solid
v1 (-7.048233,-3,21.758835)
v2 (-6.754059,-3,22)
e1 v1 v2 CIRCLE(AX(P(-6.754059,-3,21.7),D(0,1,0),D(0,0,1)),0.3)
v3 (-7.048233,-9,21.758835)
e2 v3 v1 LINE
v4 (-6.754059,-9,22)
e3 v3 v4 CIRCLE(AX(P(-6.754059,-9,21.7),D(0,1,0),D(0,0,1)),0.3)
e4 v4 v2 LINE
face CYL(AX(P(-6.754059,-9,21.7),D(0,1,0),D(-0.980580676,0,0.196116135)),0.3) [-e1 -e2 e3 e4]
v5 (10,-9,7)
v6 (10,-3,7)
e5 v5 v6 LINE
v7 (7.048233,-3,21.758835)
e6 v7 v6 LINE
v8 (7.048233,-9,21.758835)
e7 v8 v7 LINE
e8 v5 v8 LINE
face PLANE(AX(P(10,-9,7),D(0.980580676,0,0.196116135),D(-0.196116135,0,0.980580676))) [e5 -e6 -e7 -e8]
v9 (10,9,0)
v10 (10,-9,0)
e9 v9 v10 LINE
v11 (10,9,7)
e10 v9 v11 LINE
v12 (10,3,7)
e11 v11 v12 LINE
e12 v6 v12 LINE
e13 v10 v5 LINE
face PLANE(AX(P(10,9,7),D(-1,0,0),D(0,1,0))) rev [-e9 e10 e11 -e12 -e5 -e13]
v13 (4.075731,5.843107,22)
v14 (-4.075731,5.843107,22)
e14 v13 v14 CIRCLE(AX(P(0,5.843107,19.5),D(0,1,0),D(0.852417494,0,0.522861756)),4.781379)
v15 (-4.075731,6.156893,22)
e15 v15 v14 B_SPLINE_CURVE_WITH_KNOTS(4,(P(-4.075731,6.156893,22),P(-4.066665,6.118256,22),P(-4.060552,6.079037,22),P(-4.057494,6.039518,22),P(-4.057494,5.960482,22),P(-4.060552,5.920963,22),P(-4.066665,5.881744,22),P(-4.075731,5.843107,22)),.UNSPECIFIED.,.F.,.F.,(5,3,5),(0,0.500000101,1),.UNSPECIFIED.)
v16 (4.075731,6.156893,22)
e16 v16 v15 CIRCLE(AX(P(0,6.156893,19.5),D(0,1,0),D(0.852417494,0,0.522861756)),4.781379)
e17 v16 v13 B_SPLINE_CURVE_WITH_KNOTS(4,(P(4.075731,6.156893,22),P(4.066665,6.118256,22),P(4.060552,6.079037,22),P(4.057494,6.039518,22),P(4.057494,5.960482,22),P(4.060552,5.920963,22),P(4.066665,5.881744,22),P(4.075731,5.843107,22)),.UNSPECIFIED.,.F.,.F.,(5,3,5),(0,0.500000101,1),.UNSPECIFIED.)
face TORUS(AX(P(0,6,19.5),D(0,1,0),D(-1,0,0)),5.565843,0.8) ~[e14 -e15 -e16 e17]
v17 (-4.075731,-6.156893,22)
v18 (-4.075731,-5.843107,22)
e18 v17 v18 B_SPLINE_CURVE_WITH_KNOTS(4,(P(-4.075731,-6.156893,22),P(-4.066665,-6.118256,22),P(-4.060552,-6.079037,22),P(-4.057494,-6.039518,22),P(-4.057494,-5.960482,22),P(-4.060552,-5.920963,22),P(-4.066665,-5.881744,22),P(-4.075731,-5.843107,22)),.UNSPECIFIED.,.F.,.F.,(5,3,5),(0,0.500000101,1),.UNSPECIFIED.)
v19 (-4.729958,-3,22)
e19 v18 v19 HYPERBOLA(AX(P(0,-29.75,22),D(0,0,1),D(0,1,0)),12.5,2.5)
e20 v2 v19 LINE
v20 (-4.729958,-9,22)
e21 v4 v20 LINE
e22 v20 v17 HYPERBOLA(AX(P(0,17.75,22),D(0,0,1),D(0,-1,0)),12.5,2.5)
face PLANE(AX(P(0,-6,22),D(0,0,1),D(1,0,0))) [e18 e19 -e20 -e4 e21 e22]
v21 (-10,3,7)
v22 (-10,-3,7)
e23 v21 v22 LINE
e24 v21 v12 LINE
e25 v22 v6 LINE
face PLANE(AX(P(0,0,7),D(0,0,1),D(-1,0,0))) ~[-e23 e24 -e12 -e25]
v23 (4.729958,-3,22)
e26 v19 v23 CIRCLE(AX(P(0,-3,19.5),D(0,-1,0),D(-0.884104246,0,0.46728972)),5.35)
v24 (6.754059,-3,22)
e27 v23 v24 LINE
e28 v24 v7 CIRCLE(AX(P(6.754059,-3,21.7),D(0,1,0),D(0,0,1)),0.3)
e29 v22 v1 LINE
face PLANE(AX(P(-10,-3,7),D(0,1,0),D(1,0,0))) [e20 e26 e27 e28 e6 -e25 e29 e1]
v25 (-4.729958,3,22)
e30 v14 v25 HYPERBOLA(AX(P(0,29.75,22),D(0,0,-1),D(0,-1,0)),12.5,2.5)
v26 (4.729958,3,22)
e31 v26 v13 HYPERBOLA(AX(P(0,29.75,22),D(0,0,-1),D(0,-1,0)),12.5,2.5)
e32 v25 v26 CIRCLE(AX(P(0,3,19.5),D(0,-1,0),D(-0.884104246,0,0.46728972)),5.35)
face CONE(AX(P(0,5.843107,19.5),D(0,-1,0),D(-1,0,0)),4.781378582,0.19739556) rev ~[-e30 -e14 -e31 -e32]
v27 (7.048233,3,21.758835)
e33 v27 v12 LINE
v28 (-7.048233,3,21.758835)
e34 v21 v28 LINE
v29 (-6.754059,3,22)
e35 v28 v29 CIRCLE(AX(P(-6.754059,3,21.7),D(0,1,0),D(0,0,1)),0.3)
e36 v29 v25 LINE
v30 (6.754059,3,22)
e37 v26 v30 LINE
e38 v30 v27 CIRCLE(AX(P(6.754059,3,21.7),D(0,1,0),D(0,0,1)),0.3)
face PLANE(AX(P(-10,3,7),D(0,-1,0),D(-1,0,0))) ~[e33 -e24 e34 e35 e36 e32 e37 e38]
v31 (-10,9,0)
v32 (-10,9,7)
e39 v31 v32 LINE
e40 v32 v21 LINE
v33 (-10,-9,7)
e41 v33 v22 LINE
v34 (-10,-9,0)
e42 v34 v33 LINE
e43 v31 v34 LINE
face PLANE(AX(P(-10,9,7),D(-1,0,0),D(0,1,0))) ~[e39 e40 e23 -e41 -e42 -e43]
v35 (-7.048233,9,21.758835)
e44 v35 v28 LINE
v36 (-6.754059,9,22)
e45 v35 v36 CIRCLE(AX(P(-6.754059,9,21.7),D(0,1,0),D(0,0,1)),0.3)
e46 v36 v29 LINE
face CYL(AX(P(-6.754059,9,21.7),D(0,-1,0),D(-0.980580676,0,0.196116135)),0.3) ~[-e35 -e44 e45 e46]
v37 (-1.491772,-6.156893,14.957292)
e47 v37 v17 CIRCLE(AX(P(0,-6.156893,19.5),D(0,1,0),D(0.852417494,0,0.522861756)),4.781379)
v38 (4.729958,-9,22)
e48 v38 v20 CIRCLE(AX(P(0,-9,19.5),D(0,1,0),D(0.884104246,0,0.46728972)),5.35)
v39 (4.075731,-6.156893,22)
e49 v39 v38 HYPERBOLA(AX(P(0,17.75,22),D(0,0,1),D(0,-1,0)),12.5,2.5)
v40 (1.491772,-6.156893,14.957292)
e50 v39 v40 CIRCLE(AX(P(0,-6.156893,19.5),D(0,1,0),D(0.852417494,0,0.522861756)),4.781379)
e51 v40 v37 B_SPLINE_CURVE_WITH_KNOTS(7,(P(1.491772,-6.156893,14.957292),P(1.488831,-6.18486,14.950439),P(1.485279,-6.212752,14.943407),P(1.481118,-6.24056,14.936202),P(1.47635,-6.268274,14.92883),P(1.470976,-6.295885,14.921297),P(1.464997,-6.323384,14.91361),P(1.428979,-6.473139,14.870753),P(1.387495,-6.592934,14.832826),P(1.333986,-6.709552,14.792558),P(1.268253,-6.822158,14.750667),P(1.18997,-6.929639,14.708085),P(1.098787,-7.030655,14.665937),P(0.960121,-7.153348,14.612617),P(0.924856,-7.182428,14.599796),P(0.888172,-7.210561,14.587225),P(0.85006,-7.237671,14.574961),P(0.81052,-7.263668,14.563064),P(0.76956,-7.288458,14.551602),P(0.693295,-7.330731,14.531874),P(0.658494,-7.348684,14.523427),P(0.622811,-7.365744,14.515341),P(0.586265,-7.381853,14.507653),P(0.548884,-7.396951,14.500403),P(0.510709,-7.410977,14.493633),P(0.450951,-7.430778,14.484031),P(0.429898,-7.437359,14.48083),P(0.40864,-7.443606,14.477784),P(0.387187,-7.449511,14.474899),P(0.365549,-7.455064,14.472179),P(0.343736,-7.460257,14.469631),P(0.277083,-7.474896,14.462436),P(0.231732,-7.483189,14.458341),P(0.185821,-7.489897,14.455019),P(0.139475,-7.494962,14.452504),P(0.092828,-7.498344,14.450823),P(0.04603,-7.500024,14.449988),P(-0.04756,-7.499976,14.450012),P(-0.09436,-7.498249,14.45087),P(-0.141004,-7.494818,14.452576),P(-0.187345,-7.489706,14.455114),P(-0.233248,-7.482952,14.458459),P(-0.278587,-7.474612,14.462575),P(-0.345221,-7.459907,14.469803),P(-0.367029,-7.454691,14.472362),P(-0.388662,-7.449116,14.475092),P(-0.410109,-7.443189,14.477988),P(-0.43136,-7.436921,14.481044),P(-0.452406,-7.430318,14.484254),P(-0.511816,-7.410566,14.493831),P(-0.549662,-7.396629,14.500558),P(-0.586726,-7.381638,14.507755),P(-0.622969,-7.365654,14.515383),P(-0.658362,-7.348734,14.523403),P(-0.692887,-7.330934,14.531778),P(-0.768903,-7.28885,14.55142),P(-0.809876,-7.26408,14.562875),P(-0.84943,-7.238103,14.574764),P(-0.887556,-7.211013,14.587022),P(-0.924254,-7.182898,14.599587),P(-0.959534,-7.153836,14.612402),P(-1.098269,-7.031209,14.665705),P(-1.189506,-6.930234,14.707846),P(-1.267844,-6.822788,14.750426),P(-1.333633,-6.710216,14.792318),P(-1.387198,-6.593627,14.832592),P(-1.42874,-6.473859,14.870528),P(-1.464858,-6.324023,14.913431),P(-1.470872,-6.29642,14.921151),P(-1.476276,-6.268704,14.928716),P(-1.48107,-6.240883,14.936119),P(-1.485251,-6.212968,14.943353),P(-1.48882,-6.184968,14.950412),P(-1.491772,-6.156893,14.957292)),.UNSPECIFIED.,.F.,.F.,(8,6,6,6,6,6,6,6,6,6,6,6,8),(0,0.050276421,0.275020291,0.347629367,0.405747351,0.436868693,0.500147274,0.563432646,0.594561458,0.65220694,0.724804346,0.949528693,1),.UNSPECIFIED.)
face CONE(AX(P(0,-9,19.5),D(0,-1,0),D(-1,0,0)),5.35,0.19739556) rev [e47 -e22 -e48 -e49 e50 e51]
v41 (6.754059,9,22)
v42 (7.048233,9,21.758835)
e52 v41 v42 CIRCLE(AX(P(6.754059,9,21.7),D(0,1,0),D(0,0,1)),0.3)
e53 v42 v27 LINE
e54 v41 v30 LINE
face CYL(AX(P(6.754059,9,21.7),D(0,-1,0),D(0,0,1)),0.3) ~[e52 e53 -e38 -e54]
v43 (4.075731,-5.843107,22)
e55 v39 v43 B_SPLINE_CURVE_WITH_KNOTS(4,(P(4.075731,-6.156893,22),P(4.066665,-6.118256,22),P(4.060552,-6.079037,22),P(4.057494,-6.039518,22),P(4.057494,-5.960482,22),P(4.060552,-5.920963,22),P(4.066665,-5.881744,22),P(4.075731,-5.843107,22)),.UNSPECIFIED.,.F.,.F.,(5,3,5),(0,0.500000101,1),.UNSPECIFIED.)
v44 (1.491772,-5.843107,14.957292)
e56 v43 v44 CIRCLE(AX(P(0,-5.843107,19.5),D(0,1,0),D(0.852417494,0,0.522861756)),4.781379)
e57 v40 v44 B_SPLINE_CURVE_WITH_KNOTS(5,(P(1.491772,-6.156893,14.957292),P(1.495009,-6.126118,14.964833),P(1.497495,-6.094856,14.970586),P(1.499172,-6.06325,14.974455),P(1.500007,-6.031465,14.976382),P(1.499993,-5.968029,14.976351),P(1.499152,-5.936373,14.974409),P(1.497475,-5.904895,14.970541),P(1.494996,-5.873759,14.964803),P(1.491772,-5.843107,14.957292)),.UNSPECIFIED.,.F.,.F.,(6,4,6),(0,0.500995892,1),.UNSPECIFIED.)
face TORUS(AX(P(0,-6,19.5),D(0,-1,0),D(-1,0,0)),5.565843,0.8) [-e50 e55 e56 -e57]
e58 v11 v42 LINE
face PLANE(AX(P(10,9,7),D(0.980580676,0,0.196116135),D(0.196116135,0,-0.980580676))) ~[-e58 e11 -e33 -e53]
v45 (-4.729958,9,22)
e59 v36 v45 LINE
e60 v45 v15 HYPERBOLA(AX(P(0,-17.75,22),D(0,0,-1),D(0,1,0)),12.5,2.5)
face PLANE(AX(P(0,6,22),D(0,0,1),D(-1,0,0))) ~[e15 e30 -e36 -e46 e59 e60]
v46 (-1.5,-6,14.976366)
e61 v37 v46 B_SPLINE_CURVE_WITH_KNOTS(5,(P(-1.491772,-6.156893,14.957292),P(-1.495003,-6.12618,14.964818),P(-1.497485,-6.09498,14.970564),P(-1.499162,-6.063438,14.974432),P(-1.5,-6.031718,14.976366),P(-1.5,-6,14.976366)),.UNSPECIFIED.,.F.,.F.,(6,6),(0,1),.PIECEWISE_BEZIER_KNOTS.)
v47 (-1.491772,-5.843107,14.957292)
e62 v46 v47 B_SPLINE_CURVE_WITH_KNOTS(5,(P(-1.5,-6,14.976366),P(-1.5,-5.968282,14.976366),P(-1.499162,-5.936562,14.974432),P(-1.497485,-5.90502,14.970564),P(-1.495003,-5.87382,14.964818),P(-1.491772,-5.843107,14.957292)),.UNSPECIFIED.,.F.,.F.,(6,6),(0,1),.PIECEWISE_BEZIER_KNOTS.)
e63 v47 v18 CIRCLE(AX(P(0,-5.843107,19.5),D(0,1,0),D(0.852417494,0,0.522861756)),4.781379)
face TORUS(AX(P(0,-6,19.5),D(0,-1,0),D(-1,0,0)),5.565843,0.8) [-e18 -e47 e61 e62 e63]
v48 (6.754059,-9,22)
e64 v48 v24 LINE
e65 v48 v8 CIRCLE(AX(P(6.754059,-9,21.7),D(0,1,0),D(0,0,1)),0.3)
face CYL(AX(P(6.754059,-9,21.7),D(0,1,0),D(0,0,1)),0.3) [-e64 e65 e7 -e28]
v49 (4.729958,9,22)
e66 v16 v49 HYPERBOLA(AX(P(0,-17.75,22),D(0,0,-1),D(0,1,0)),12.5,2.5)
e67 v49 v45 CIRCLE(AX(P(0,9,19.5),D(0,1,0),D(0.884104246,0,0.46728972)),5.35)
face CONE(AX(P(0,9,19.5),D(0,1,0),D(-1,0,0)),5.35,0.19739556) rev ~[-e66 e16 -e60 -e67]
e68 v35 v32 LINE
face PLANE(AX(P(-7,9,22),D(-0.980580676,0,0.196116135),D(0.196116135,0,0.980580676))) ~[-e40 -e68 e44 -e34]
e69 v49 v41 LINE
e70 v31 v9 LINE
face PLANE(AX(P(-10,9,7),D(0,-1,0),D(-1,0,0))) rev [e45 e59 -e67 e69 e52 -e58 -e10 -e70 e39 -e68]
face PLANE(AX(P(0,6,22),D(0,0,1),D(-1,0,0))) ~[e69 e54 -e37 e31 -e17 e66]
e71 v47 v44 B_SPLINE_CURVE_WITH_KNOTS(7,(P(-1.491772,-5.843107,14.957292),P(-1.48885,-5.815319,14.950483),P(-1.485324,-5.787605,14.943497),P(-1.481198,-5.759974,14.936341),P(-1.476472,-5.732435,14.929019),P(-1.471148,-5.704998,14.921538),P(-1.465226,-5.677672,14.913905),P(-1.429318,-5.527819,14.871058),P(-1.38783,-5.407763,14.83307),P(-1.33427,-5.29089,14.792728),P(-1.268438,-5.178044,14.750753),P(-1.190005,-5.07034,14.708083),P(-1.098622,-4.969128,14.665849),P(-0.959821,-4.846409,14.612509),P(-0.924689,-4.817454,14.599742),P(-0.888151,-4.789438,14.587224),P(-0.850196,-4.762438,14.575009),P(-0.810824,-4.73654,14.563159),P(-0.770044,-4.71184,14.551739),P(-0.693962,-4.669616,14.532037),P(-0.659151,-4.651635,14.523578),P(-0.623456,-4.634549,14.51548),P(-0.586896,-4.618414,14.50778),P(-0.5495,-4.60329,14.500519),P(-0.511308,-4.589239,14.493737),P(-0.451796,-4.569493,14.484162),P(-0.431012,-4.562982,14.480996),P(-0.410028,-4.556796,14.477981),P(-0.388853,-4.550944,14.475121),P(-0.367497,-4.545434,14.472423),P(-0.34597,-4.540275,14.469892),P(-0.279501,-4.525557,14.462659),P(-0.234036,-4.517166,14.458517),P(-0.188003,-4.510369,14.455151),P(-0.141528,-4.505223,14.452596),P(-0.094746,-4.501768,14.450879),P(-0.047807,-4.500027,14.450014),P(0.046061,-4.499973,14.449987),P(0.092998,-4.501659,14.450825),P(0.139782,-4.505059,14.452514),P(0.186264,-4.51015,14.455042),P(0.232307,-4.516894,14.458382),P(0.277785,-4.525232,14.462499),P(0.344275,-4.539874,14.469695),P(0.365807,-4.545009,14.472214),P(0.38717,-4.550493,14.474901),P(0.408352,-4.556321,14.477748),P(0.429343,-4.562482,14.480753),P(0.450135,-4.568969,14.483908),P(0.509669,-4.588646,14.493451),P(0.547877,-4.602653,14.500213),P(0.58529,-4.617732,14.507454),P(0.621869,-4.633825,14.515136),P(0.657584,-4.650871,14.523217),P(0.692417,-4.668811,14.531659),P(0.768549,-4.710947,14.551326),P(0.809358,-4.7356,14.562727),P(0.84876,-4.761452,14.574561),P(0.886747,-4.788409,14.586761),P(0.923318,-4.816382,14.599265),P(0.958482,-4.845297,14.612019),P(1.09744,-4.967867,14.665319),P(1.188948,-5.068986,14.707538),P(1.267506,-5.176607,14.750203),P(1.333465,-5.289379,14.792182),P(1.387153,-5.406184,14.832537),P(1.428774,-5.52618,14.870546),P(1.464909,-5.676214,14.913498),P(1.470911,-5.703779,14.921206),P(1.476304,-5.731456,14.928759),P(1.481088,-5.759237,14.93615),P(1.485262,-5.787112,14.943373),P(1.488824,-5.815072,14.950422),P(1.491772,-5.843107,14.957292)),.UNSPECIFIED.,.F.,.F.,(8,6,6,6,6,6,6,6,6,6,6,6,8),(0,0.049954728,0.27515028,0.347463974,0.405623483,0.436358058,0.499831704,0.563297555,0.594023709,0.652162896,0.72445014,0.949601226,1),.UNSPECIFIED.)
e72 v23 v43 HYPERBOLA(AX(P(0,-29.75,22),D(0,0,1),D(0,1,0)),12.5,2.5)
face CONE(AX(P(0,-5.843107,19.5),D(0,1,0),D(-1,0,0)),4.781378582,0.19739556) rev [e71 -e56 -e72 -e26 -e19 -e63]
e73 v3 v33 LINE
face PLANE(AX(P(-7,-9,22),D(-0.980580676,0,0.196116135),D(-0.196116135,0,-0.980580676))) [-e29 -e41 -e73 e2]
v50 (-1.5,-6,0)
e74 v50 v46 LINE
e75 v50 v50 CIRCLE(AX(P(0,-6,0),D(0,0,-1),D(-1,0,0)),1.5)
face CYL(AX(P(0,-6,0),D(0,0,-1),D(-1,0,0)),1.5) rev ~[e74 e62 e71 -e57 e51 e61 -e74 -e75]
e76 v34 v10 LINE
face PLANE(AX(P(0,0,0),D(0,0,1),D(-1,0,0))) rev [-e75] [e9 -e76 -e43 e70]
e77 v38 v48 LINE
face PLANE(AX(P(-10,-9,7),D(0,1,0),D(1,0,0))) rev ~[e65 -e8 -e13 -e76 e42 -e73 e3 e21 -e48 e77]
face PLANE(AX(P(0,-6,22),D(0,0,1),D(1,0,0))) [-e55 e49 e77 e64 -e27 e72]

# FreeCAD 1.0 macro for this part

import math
import FreeCAD as App
import Part
import Sketcher

V = App.Vector
Q = App.Units.Quantity


def edges_at(feature, points):
    """Names of the edges that pass closest to the given points."""
    edges = feature.Shape.Edges
    near = lambda p: min(range(len(edges)), key=lambda i: edges[i].distToShape(Part.Vertex(*p))[0])
    return sorted({f"Edge{near(p) + 1}" for p in points})


def add_polygon(sketch, points):
    """Adds a closed chain of lines whose ends are joined by coincident constraints."""
    first, n = sketch.GeometryCount, len(points)
    for a, b in zip(points, points[1:] + points[:1]):
        sketch.addGeometry(Part.LineSegment(App.Vector(*a, 0), App.Vector(*b, 0)), False)
    for i in range(n):
        sketch.addConstraint(Sketcher.Constraint("Coincident", first + i, 2, first + (i + 1) % n, 1))

doc = App.newDocument("Part")
body = doc.addObject("PartDesign::Body", "Body")

# Sketch on XY plane
sketch1 = body.newObject("Sketcher::SketchObject", "Sketch")
sketch1.AttachmentSupport = (doc.getObject("XY_Plane"), [""])
sketch1.MapMode = "FlatFace"
add_polygon(sketch1, [(-10, 9), (-10, -9), (10, -9), (10, 9)])  # lines 0-3
sketch1.addConstraint([
    Sketcher.Constraint("Vertical", 0),
    Sketcher.Constraint("Horizontal", 1),
    Sketcher.Constraint("Vertical", 2),
    Sketcher.Constraint("Horizontal", 3),
    Sketcher.Constraint("Symmetric", 0, 2, 2, 2, -1, 1),
    Sketcher.Constraint("DistanceX", 1, 1, 1, 2, Q("20 mm")),
    Sketcher.Constraint("DistanceY", 0, 2, 0, 1, Q("18 mm")),
])
pad1 = body.newObject("PartDesign::Pad", "Pad")
pad1.Profile = sketch1
pad1.Length = 7

# Sketch on XY plane
sketch2 = body.newObject("Sketcher::SketchObject", "Sketch001")
sketch2.AttachmentSupport = (doc.getObject("XY_Plane"), [""])
sketch2.MapMode = "FlatFace"
sketch2.AttachmentOffset = App.Placement(V(0, 0, 7), App.Rotation())
add_polygon(sketch2, [(-10, -3), (-10, -9), (10, -9), (10, -3)])  # lines 0-3
add_polygon(sketch2, [(-10, 9), (-10, 3), (10, 3), (10, 9)])  # lines 4-7
sketch2.addConstraint([
    Sketcher.Constraint("Vertical", 0),
    Sketcher.Constraint("Horizontal", 1),
    Sketcher.Constraint("Vertical", 2),
    Sketcher.Constraint("Horizontal", 3),
    Sketcher.Constraint("Vertical", 4),
    Sketcher.Constraint("Horizontal", 5),
    Sketcher.Constraint("Vertical", 6),
    Sketcher.Constraint("Horizontal", 7),
    Sketcher.Constraint("Symmetric", 2, 2, 4, 2, -1, 1),
    Sketcher.Constraint("Symmetric", 0, 2, 6, 2, -1, 1),
    Sketcher.Constraint("Vertical", 3, 2, 4, 2),
    Sketcher.Constraint("DistanceX", 1, 1, 1, 2, Q("20 mm")),
    Sketcher.Constraint("DistanceY", 0, 2, 0, 1, Q("6 mm")),
    Sketcher.Constraint("DistanceY", 0, 2, -1, 1, Q("9 mm")),
])
pad2 = body.newObject("PartDesign::Pad", "Pad001")
pad2.Profile = sketch2
pad2.Length = 15

# Sketch on XZ plane
sketch3 = body.newObject("Sketcher::SketchObject", "Sketch002")
sketch3.AttachmentSupport = (doc.getObject("XZ_Plane"), [""])
sketch3.MapMode = "FlatFace"
sketch3.AttachmentOffset = App.Placement(V(0, 0, 9), App.Rotation())
sketch3.addGeometry(Part.Circle(V(0, 19.5, 0), V(0, 0, 1), 5.3), False)  # 0
add_polygon(sketch3, [(-10, 7), (-7, 22), (-10, 22)])  # lines 1-3
add_polygon(sketch3, [(10, 22), (7, 22), (10, 7)])  # lines 4-6
sketch3.addConstraint([
    Sketcher.Constraint("Horizontal", 2),
    Sketcher.Constraint("Vertical", 3),
    Sketcher.Constraint("Horizontal", 4),
    Sketcher.Constraint("Vertical", 6),
    Sketcher.Constraint("Symmetric", 1, 2, 4, 2, -2),
    Sketcher.Constraint("Symmetric", 3, 2, 5, 2, -2),
    Sketcher.Constraint("PointOnObject", 0, 3, -2),
    Sketcher.Constraint("Diameter", 0, Q("10.7 mm")),
    Sketcher.Constraint("DistanceX", 2, 2, 2, 1, Q("3 mm")),
    Sketcher.Constraint("DistanceY", 3, 2, 3, 1, Q("15 mm")),
    Sketcher.Constraint("DistanceX", 1, 2, -1, 1, Q("7 mm")),
    Sketcher.Constraint("DistanceY", -1, 1, 1, 2, Q("22 mm")),
    Sketcher.Constraint("DistanceY", -1, 1, 0, 3, Q("19.5 mm")),
])
pocket1 = body.newObject("PartDesign::Pocket", "Pocket")
pocket1.Profile = sketch3
pocket1.Length = 18

# Sketch on XY plane
sketch4 = body.newObject("Sketcher::SketchObject", "Sketch003")
sketch4.AttachmentSupport = (doc.getObject("XY_Plane"), [""])
sketch4.MapMode = "FlatFace"
sketch4.AttachmentOffset = App.Placement(V(0, 0, 19.5), App.Rotation())
sketch4.addGeometry([
    Part.LineSegment(V(-5.35, -3, 0), V(-5.35, -9, 0)),
    Part.LineSegment(V(-5.35, -9, 0), V(-4.78, -6.16, 0)),
    Part.ArcOfCircle(Part.Circle(V(-5.57, -6, 0), V(0, 0, 1), 0.8), math.radians(-11), math.radians(11)),
    Part.LineSegment(V(-4.78, -5.84, 0), V(-5.35, -3, 0)),
], False)
sketch4.addConstraint([
    Sketcher.Constraint("Coincident", 0, 2, 1, 1),
    Sketcher.Constraint("Tangent", 1, 2, 2, 1),
    Sketcher.Constraint("Tangent", 2, 2, 3, 1),
    Sketcher.Constraint("Coincident", 3, 2, 0, 1),
    Sketcher.Constraint("Vertical", 0),
    Sketcher.Constraint("Vertical", 1, 2, 2, 2),
    Sketcher.Constraint("Radius", 2, Q("0.8 mm")),
    Sketcher.Constraint("DistanceY", 0, 2, 0, 1, Q("6 mm")),
    Sketcher.Constraint("DistanceY", 2, 3, -1, 1, Q("6 mm")),
    Sketcher.Constraint("DistanceX", 0, 2, -1, 1, Q("5.35 mm")),
    Sketcher.Constraint("Distance", 1, Q("2.899412 mm")),
])
revolution = body.newObject("PartDesign::Revolution", "Revolution")
revolution.Profile = sketch4
revolution.ReferenceAxis = (sketch4, ["V_Axis"])
revolution.Angle = 360

# Sketch on XY plane
sketch5 = body.newObject("Sketcher::SketchObject", "Sketch004")
sketch5.AttachmentSupport = (doc.getObject("XY_Plane"), [""])
sketch5.MapMode = "FlatFace"
sketch5.AttachmentOffset = App.Placement(V(0, 0, 22), App.Rotation())
add_polygon(sketch5, [(-7, -3), (-7, -9), (7, -9), (7, -3)])  # lines 0-3
sketch5.addConstraint([
    Sketcher.Constraint("Vertical", 0),
    Sketcher.Constraint("Horizontal", 1),
    Sketcher.Constraint("Vertical", 2),
    Sketcher.Constraint("Horizontal", 3),
    Sketcher.Constraint("DistanceX", 1, 1, 1, 2, Q("14 mm")),
    Sketcher.Constraint("DistanceY", 0, 2, 0, 1, Q("6 mm")),
    Sketcher.Constraint("DistanceX", 0, 2, -1, 1, Q("7 mm")),
    Sketcher.Constraint("DistanceY", 0, 2, -1, 1, Q("9 mm")),
])
pocket2 = body.newObject("PartDesign::Pocket", "Pocket001")
pocket2.Profile = sketch5
pocket2.Type = "ThroughAll"
pocket2.Reversed = True
doc.recompute()

fillet = body.newObject("PartDesign::Fillet", "Fillet")
fillet.Base = (pocket2, edges_at(pocket2, [
    (7, -6, 22),
    (-7, -6, 22),
    (-7, 6, 22),
    (7, 6, 22),
    (-4.73, 6, 22),
    (4.73, 6, 22),
]))
fillet.Radius = 0.3

# Sketch on XY plane
sketch6 = body.newObject("Sketcher::SketchObject", "Sketch005")
sketch6.AttachmentSupport = (doc.getObject("XY_Plane"), [""])
sketch6.MapMode = "FlatFace"
sketch6.AttachmentOffset = App.Placement(V(0, 0, 7), App.Rotation())
add_polygon(sketch6, [(-10, 9), (-10, 0), (10, 0), (10, 9)])  # lines 0-3
sketch6.addConstraint([
    Sketcher.Constraint("Vertical", 0),
    Sketcher.Constraint("Horizontal", 1),
    Sketcher.Constraint("Vertical", 2),
    Sketcher.Constraint("Horizontal", 3),
    Sketcher.Constraint("Symmetric", 0, 2, 1, 2, -1, 1),
    Sketcher.Constraint("DistanceX", 1, 1, 1, 2, Q("20 mm")),
    Sketcher.Constraint("DistanceY", 0, 2, 0, 1, Q("9 mm")),
])
pocket3 = body.newObject("PartDesign::Pocket", "Pocket002")
pocket3.Profile = sketch6
pocket3.Type = "ThroughAll"
pocket3.Midplane = True
body2 = doc.addObject("PartDesign::Body", "Body001")
doc.recompute()

body2.BaseFeature = body
doc.recompute()

mirroring = doc.addObject("Part::Mirroring", "Mirroring")
mirroring.Source = body
mirroring.Base = V(-10, 0, 0)
mirroring.Normal = V(0, -1, 0)
body3 = doc.addObject("PartDesign::Body", "Body002")
body3.BaseFeature = mirroring
boolean = body2.newObject("PartDesign::Boolean", "Boolean")
boolean.Type = "Fuse"
boolean.addObjects([body3])
doc.recompute()

# Sketch on XY plane
sketch7 = body2.newObject("Sketcher::SketchObject", "Sketch006")
sketch7.AttachmentSupport = (doc.getObject("XY_Plane001"), [""])
sketch7.MapMode = "FlatFace"
sketch7.addGeometry(Part.Circle(V(0, -6, 0), V(0, 0, 1), 1.5), False)
sketch7.addConstraint([
    Sketcher.Constraint("PointOnObject", 0, 3, -2),
    Sketcher.Constraint("Diameter", 0, Q("3 mm")),
    Sketcher.Constraint("DistanceY", 0, 3, -1, 1, Q("6 mm")),
])
pocket4 = body2.newObject("PartDesign::Pocket", "Pocket003")
pocket4.Profile = sketch7
pocket4.Type = "ThroughAll"
pocket4.Midplane = True
mirroring.Visibility = False

doc.recompute()
